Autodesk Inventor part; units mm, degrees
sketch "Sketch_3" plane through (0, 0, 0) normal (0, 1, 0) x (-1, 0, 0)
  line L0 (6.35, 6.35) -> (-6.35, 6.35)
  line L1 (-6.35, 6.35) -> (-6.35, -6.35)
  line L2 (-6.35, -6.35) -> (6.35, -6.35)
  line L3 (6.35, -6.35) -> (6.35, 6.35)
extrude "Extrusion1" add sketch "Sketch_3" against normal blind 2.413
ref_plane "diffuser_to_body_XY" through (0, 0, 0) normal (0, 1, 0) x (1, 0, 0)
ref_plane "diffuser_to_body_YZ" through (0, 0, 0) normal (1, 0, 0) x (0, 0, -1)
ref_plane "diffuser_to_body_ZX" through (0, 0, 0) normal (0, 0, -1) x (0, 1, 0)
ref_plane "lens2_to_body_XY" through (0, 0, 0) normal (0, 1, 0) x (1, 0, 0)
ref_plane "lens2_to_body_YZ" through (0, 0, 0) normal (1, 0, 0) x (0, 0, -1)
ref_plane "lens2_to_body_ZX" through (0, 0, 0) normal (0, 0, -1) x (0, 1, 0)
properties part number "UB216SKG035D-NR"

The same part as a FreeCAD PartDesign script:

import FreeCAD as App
import Part
import Sketcher
Q = App.Units.Quantity


def add_polygon(sketch, points):
    """Adds a closed chain of lines whose ends are joined by coincident constraints."""
    first, n = sketch.GeometryCount, len(points)
    for a, b in zip(points, points[1:] + points[:1]):
        sketch.addGeometry(Part.LineSegment(App.Vector(*a, 0), App.Vector(*b, 0)), False)
    for i in range(n):
        sketch.addConstraint(Sketcher.Constraint("Coincident", first + i, 2, first + (i + 1) % n, 1))

doc = App.newDocument("Part")
body = doc.addObject("PartDesign::Body", "Body")

# Sketch on XZ plane
sketch1 = doc.addObject("Sketcher::SketchObject", "Sketch")
body.addObject(sketch1)
sketch1.AttachmentSupport = (doc.XZ_Plane, [""])
sketch1.MapMode = "FlatFace"
add_polygon(sketch1, [(-6, -6), (-6, 6), (6, 6), (6, -6)])  # lines 0-3
sketch1.addConstraint([
    Sketcher.Constraint("Vertical", 0),
    Sketcher.Constraint("Horizontal", 1),
    Sketcher.Constraint("Vertical", 2),
    Sketcher.Constraint("Horizontal", 3),
    Sketcher.Constraint("Symmetric", 0, 2, 2, 2, -1, 1),
    Sketcher.Constraint("Equal", 3, 0),
    Sketcher.Constraint("DistanceX", 1, 1, 1, 2, Q("0.5 in")),
])
pad1 = doc.addObject("PartDesign::Pad", "Pad")
body.addObject(pad1)
pad1.Profile = sketch1
pad1.Length = Q("0.095 in")

doc.recompute()
